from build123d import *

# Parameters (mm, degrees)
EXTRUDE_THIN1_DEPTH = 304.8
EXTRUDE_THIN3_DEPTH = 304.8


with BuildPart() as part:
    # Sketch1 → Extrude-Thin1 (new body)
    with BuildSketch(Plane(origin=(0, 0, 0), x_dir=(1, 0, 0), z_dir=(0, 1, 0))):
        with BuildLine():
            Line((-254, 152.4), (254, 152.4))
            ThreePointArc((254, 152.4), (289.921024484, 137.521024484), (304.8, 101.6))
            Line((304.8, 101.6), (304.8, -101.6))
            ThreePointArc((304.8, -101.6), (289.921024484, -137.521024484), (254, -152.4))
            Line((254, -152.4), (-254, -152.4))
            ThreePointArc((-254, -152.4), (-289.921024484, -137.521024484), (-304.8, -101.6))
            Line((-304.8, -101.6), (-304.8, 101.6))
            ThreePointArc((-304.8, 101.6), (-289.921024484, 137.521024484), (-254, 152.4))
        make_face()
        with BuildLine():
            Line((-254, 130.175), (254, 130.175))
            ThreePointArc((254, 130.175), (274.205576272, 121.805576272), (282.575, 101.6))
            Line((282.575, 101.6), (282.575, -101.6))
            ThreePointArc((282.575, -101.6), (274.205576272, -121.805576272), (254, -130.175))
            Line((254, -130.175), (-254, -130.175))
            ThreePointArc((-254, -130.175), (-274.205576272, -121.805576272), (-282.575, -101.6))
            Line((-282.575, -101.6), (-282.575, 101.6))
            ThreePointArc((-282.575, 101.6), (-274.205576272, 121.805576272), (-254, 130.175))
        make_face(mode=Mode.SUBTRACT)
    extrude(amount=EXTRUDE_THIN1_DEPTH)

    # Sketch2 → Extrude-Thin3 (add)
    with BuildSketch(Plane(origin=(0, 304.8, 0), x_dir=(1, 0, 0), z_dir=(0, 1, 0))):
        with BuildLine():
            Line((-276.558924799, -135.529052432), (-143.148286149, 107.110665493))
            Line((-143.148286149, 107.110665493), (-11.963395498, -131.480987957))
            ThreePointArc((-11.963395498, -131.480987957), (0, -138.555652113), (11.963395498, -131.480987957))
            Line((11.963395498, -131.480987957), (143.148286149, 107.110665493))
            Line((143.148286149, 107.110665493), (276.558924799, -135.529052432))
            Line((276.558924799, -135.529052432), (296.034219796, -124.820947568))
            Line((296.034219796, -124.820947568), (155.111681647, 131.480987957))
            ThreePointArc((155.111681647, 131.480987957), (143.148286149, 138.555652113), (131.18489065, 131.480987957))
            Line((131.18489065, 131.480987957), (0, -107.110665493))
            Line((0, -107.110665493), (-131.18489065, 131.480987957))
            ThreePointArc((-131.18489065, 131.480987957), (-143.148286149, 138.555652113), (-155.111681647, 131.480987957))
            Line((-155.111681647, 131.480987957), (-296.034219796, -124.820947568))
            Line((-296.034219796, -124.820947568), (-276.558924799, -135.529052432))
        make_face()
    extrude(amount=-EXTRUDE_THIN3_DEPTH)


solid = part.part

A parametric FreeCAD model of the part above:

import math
import FreeCAD as App
import Part
import Sketcher

V = App.Vector
Q = App.Units.Quantity

doc = App.newDocument("Part")
body = doc.addObject("PartDesign::Body", "Body")

sketch1 = body.newObject("Sketcher::SketchObject", "Sketch")
sketch1.AttachmentSupport = (doc.getObject("XZ_Plane"), [""])
sketch1.MapMode = "FlatFace"
sketch1.addGeometry([
    Part.LineSegment(V(254, -152.4, 0), V(-254, -152.4, 0)),
    Part.ArcOfCircle(Part.Circle(V(-254, -101.6, 0), V(0, 0, 1), 50.8), math.radians(-180), math.radians(-90)),
    Part.LineSegment(V(-304.8, -101.6, 0), V(-304.8, 101.6, 0)),
    Part.ArcOfCircle(Part.Circle(V(-254, 101.6, 0), V(0, 0, 1), 50.8), math.radians(90), math.radians(180)),
    Part.LineSegment(V(-254, 152.4, 0), V(254, 152.4, 0)),
    Part.ArcOfCircle(Part.Circle(V(254, 101.6, 0), V(0, 0, 1), 50.8), math.radians(0), math.radians(90)),
    Part.LineSegment(V(304.8, 101.6, 0), V(304.8, -101.6, 0)),
    Part.ArcOfCircle(Part.Circle(V(254, -101.6, 0), V(0, 0, 1), 50.8), math.radians(-90), math.radians(0)),
    Part.LineSegment(V(-254, -130.175, 0), V(254, -130.175, 0)),
    Part.ArcOfCircle(Part.Circle(V(254, -101.6, 0), V(0, 0, 1), 28.575), math.radians(-90), math.radians(0)),
    Part.LineSegment(V(282.575, -101.6, 0), V(282.575, 101.6, 0)),
    Part.ArcOfCircle(Part.Circle(V(254, 101.6, 0), V(0, 0, 1), 28.575), math.radians(0), math.radians(90)),
    Part.LineSegment(V(254, 130.175, 0), V(-254, 130.175, 0)),
    Part.ArcOfCircle(Part.Circle(V(-254, 101.6, 0), V(0, 0, 1), 28.575), math.radians(90), math.radians(180)),
    Part.LineSegment(V(-282.575, 101.6, 0), V(-282.575, -101.6, 0)),
    Part.ArcOfCircle(Part.Circle(V(-254, -101.6, 0), V(0, 0, 1), 28.575), math.radians(-180), math.radians(-90)),
], False)
sketch1.addConstraint([
    Sketcher.Constraint("Tangent", 0, 2, 1, 2),
    Sketcher.Constraint("Tangent", 1, 1, 2, 1),
    Sketcher.Constraint("Tangent", 2, 2, 3, 2),
    Sketcher.Constraint("Tangent", 3, 1, 4, 1),
    Sketcher.Constraint("Tangent", 4, 2, 5, 2),
    Sketcher.Constraint("Tangent", 5, 1, 6, 1),
    Sketcher.Constraint("Tangent", 6, 2, 7, 2),
    Sketcher.Constraint("Tangent", 7, 1, 0, 1),
    Sketcher.Constraint("Tangent", 8, 2, 9, 1),
    Sketcher.Constraint("Tangent", 9, 2, 10, 1),
    Sketcher.Constraint("Tangent", 10, 2, 11, 1),
    Sketcher.Constraint("Tangent", 11, 2, 12, 1),
    Sketcher.Constraint("Tangent", 12, 2, 13, 1),
    Sketcher.Constraint("Tangent", 13, 2, 14, 1),
    Sketcher.Constraint("Tangent", 14, 2, 15, 1),
    Sketcher.Constraint("Tangent", 15, 2, 8, 1),
    Sketcher.Constraint("Horizontal", 0),
    Sketcher.Constraint("Vertical", 2),
    Sketcher.Constraint("Horizontal", 4),
    Sketcher.Constraint("Vertical", 6),
    Sketcher.Constraint("Horizontal", 8),
    Sketcher.Constraint("Vertical", 10),
    Sketcher.Constraint("Horizontal", 12),
    Sketcher.Constraint("Vertical", 14),
    Sketcher.Constraint("Coincident", 9, 3, 7, 3),
    Sketcher.Constraint("Coincident", 11, 3, 5, 3),
    Sketcher.Constraint("Coincident", 13, 3, 3, 3),
    Sketcher.Constraint("Equal", 1, 3),
    Sketcher.Constraint("Equal", 3, 5),
    Sketcher.Constraint("Equal", 5, 7),
    Sketcher.Constraint("Equal", 13, 15),
    Sketcher.Constraint("Symmetric", 1, 3, 5, 3, -1, 1),
    Sketcher.Constraint("Radius", 1, Q("2 in")),
    Sketcher.Constraint("DistanceX", 0, 2, 0, 1, Q("20 in")),
    Sketcher.Constraint("DistanceY", 2, 1, 2, 2, Q("8 in")),
    Sketcher.Constraint("Radius", 9, Q("1.125 in")),
])
pad1 = body.newObject("PartDesign::Pad", "Pad")
pad1.Profile = sketch1
pad1.Length = Q("12 in")
pad1.Reversed = True

sketch2 = body.newObject("Sketcher::SketchObject", "Sketch001")
sketch2.AttachmentSupport = (doc.getObject("XZ_Plane"), [""])
sketch2.MapMode = "FlatFace"
sketch2.AttachmentOffset = App.Placement(V(0, 0, -12 * 25.4), App.Rotation())
sketch2.addGeometry([
    Part.LineSegment(V(-276.558925, 135.529052, 0), V(-143.148286, -107.110665, 0)),
    Part.LineSegment(V(-143.148286, -107.110665, 0), V(-11.963395, 131.480988, 0)),
    Part.ArcOfCircle(Part.Circle(V(0, 124.903152, 0), V(0, 0, 1), 13.6525), math.radians(28.803323), math.radians(151.196677)),
    Part.LineSegment(V(11.963395, 131.480988, 0), V(143.148286, -107.110665, 0)),
    Part.LineSegment(V(143.148286, -107.110665, 0), V(276.558925, 135.529052, 0)),
    Part.LineSegment(V(276.558925, 135.529052, 0), V(296.03422, 124.820948, 0)),
    Part.LineSegment(V(296.03422, 124.820948, 0), V(155.111682, -131.480988, 0)),
    Part.ArcOfCircle(Part.Circle(V(143.148286, -124.903152, 0), V(0, 0, 1), 13.6525), math.radians(-151.196677), math.radians(-28.803323)),
    Part.LineSegment(V(131.184891, -131.480988, 0), V(0, 107.110665, 0)),
    Part.LineSegment(V(0, 107.110665, 0), V(-131.184891, -131.480988, 0)),
    Part.ArcOfCircle(Part.Circle(V(-143.148286, -124.903152, 0), V(0, 0, 1), 13.6525), math.radians(-151.196677), math.radians(-28.803323)),
    Part.LineSegment(V(-155.111682, -131.480988, 0), V(-296.03422, 124.820948, 0)),
    Part.LineSegment(V(-296.03422, 124.820948, 0), V(-276.558925, 135.529052, 0)),
], False)
sketch2.addConstraint([
    Sketcher.Constraint("Coincident", 0, 2, 1, 1),
    Sketcher.Constraint("Coincident", 1, 2, 2, 2),
    Sketcher.Constraint("Coincident", 2, 1, 3, 1),
    Sketcher.Constraint("Coincident", 3, 2, 4, 1),
    Sketcher.Constraint("Coincident", 4, 2, 5, 1),
    Sketcher.Constraint("Coincident", 5, 2, 6, 1),
    Sketcher.Constraint("Coincident", 6, 2, 7, 2),
    Sketcher.Constraint("Coincident", 7, 1, 8, 1),
    Sketcher.Constraint("Coincident", 8, 2, 9, 1),
    Sketcher.Constraint("Coincident", 9, 2, 10, 2),
    Sketcher.Constraint("Coincident", 10, 1, 11, 1),
    Sketcher.Constraint("Coincident", 11, 2, 12, 1),
    Sketcher.Constraint("Coincident", 12, 2, 0, 1),
    Sketcher.Constraint("PointOnObject", 2, 3, -2),
    Sketcher.Constraint("PointOnObject", 8, 2, -2),
    Sketcher.Constraint("Radius", 2, Q("0.5375 in")),
    Sketcher.Constraint("Radius", 7, Q("0.5375 in")),
    Sketcher.Constraint("Radius", 10, Q("0.5375 in")),
    Sketcher.Constraint("Distance", 5, Q("0.875 in")),
    Sketcher.Constraint("Distance", 12, Q("0.875 in")),
    Sketcher.Constraint("DistanceX", 1, 2, -1, 1, Q("0.4709998 in")),
    Sketcher.Constraint("DistanceX", -1, 1, 2, 1, Q("0.4709998 in")),
    Sketcher.Constraint("DistanceX", 7, 3, 6, 2, Q("0.4709998 in")),
    Sketcher.Constraint("DistanceX", 3, 2, 6, 2, Q("0.4709998 in")),
    Sketcher.Constraint("DistanceX", 7, 1, 7, 3, Q("0.4709998 in")),
    Sketcher.Constraint("DistanceX", 10, 3, 9, 2, Q("0.4709998 in")),
    Sketcher.Constraint("DistanceX", 0, 2, 9, 2, Q("0.4709998 in")),
    Sketcher.Constraint("DistanceX", 10, 1, 10, 3, Q("0.4709998 in")),
    Sketcher.Constraint("DistanceY", 2, 3, 4, 2, 10.6259),
    Sketcher.Constraint("DistanceY", 7, 3, 5, 2, 249.7241),
    Sketcher.Constraint("DistanceY", 10, 3, 11, 2, 249.7241),
    Sketcher.Constraint("DistanceY", 2, 3, 12, 2, 10.6259),
    Sketcher.Constraint("Distance", 0, 276.897871),
    Sketcher.Constraint("Distance", 4, 276.897871),
    Sketcher.Constraint("Distance", 6, 292.489049),
    Sketcher.Constraint("Distance", 11, 292.489049),
    Sketcher.Constraint("DistanceX", -1, 1, 5, 2, 296.03422),
    Sketcher.Constraint("DistanceX", 9, 2, -1, 1, 131.184891),
    Sketcher.Constraint("DistanceY", 10, 3, 1, 2, 256.38414),
    Sketcher.Constraint("DistanceY", 7, 3, 1, 2, 256.38414),
    Sketcher.Constraint("DistanceY", 0, 2, 8, 2, 214.221331),
    Sketcher.Constraint("DistanceY", -1, 1, 2, 3, 124.903152),
])
pad2 = body.newObject("PartDesign::Pad", "Pad001")
pad2.Profile = sketch2
pad2.Length = Q("12 in")

doc.recompute()
